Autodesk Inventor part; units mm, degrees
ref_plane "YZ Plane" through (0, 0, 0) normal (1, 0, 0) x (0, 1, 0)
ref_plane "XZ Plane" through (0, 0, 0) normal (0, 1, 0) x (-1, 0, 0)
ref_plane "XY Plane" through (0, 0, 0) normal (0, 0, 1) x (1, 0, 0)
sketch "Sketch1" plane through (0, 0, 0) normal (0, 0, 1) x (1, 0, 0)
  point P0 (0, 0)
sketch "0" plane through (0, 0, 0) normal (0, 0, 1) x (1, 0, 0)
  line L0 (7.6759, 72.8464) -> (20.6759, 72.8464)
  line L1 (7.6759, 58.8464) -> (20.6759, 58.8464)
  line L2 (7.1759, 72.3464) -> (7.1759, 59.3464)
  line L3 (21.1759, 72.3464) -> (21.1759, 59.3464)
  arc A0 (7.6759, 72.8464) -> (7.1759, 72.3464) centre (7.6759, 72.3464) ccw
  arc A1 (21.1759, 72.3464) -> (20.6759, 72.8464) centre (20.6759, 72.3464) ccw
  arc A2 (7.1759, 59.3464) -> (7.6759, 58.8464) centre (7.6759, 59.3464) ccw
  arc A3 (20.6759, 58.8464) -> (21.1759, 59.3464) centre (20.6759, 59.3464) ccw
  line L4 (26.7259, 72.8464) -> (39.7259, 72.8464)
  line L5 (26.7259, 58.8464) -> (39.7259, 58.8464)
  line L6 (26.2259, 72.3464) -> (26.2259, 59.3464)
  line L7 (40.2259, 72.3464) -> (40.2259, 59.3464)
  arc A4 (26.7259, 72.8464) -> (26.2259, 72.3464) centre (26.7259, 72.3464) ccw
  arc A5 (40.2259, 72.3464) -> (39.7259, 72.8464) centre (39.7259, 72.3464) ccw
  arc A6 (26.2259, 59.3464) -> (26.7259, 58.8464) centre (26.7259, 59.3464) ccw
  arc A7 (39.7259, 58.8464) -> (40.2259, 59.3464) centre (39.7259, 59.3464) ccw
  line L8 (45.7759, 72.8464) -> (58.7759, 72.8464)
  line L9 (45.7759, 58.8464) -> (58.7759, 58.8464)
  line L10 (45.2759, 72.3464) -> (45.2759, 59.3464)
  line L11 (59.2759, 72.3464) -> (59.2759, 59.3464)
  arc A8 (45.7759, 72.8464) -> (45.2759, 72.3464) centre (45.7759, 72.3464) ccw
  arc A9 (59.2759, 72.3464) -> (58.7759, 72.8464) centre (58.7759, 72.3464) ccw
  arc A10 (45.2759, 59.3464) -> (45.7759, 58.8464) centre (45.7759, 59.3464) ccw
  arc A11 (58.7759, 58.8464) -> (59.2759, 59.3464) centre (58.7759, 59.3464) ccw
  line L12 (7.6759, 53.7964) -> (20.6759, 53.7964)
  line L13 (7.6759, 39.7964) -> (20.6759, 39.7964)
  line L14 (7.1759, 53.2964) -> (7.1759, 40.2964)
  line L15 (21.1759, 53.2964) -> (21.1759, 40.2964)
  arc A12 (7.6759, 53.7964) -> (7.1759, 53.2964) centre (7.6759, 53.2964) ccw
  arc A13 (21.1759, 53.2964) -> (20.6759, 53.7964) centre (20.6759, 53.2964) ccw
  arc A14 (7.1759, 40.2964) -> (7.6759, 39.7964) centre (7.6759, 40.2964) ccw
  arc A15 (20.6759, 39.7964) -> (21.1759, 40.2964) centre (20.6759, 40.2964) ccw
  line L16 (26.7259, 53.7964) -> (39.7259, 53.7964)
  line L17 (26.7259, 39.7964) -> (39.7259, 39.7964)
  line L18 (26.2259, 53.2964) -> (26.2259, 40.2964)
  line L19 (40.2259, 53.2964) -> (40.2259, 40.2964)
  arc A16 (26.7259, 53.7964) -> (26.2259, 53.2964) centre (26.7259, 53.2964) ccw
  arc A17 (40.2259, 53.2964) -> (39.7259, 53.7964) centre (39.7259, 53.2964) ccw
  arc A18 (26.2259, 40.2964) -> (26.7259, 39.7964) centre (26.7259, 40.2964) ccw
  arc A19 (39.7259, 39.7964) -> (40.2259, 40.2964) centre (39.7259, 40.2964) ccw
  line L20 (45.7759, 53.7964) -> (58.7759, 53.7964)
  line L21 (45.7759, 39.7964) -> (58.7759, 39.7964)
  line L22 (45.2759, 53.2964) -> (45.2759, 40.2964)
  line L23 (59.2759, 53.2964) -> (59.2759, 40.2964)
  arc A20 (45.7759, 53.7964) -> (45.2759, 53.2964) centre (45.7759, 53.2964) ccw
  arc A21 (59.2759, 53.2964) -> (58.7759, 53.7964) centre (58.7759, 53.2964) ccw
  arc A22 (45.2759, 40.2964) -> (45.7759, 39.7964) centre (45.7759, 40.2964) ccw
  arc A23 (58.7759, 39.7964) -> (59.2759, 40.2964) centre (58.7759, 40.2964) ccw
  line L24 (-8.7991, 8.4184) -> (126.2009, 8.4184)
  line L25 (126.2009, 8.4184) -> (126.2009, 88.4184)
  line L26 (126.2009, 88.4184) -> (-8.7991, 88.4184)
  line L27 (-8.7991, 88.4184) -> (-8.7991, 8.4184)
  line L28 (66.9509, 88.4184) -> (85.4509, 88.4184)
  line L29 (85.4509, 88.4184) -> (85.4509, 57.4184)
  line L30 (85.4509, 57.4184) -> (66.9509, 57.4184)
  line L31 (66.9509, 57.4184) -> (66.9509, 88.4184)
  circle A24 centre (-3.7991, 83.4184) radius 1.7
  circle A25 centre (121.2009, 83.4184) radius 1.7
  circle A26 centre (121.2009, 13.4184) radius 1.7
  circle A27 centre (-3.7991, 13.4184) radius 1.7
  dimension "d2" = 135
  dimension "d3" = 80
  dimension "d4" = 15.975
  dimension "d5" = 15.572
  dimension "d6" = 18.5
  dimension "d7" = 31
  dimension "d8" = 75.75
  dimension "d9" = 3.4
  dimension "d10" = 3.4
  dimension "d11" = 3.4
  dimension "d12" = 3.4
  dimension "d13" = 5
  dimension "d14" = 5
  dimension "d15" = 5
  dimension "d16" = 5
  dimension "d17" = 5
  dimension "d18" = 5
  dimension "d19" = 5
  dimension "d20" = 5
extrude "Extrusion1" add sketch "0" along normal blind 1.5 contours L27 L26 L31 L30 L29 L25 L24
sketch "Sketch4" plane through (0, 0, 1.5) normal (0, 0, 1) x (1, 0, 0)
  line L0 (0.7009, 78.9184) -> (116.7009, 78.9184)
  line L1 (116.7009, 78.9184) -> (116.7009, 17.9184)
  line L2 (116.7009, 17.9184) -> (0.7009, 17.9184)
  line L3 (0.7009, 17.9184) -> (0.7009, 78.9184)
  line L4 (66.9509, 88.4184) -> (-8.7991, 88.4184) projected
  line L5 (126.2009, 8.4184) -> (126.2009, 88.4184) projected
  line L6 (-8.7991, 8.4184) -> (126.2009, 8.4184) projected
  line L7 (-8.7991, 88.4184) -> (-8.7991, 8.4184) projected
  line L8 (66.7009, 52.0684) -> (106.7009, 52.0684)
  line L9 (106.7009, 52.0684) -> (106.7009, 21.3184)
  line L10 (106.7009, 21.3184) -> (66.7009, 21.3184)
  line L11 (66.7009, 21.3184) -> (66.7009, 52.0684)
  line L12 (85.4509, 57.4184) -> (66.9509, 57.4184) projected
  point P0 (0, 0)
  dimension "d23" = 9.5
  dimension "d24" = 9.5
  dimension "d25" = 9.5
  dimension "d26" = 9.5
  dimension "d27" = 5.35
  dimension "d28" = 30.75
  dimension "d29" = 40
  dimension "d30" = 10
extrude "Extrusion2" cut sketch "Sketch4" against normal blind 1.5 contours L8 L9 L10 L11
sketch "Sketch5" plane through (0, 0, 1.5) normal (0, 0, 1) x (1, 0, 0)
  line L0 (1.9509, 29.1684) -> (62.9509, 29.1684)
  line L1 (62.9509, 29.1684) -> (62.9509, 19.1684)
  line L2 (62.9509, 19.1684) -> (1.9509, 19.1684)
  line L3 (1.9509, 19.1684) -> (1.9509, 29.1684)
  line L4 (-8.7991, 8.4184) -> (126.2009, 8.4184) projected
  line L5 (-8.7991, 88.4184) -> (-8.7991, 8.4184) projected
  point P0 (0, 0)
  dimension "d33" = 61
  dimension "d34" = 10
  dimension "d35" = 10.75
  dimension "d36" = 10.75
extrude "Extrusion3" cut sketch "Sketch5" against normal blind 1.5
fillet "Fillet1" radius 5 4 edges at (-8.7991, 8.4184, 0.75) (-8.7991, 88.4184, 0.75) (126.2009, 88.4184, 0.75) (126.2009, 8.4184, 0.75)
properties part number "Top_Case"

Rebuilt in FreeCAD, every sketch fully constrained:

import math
import FreeCAD as App
import Part
import Sketcher


def edges_at(feature, points):
    """Names of the edges that pass closest to the given points."""
    edges = feature.Shape.Edges
    near = lambda p: min(range(len(edges)), key=lambda i: edges[i].distToShape(Part.Vertex(*p))[0])
    return sorted({f"Edge{near(p) + 1}" for p in points})

doc = App.newDocument("Part")
body = doc.addObject("PartDesign::Body", "Body")

# Sketch on XY plane
sketch1 = body.newObject("Sketcher::SketchObject", "Sketch")
sketch1.AttachmentSupport = (doc.getObject("XY_Plane"), [""])
sketch1.MapMode = "FlatFace"
sketch1.addGeometry([
    Part.LineSegment(App.Vector(-8.8, 88.4, 0), App.Vector(-8.8, 8.4, 0)),  # 0
    Part.LineSegment(App.Vector(-8.8, 8.4, 0), App.Vector(126.2, 8.4, 0)),  # 1
    Part.LineSegment(App.Vector(126.2, 8.4, 0), App.Vector(126.2, 88.4, 0)),  # 2
    Part.LineSegment(App.Vector(126.2, 88.4, 0), App.Vector(85.5, 88.4, 0)),  # 3
    Part.LineSegment(App.Vector(85.5, 88.4, 0), App.Vector(85.5, 57.4, 0)),  # 4
    Part.LineSegment(App.Vector(85.5, 57.4, 0), App.Vector(67, 57.4, 0)),  # 5
    Part.LineSegment(App.Vector(67, 57.4, 0), App.Vector(67, 88.4, 0)),  # 6
    Part.LineSegment(App.Vector(67, 88.4, 0), App.Vector(-8.8, 88.4, 0)),  # 7
    Part.Circle(App.Vector(-3.8, 13.4, 0), App.Vector(0, 0, 1), 1.7),  # 8
    Part.ArcOfCircle(Part.Circle(App.Vector(7.7, 53.3, 0), App.Vector(0, 0, 1), 0.5), math.radians(90), math.radians(180)),  # 9
    Part.LineSegment(App.Vector(7.7, 53.8, 0), App.Vector(20.7, 53.8, 0)),  # 10
    Part.ArcOfCircle(Part.Circle(App.Vector(20.7, 53.3, 0), App.Vector(0, 0, 1), 0.5), math.radians(0), math.radians(90)),  # 11
    Part.LineSegment(App.Vector(21.2, 53.3, 0), App.Vector(21.2, 40.3, 0)),  # 12
    Part.ArcOfCircle(Part.Circle(App.Vector(20.7, 40.3, 0), App.Vector(0, 0, 1), 0.5), math.radians(-90), math.radians(0)),  # 13
    Part.LineSegment(App.Vector(20.7, 39.8, 0), App.Vector(7.7, 39.8, 0)),  # 14
    Part.ArcOfCircle(Part.Circle(App.Vector(7.7, 40.3, 0), App.Vector(0, 0, 1), 0.5), math.radians(180), math.radians(270)),  # 15
    Part.LineSegment(App.Vector(7.2, 40.3, 0), App.Vector(7.2, 53.3, 0)),  # 16
    Part.ArcOfCircle(Part.Circle(App.Vector(26.7, 53.3, 0), App.Vector(0, 0, 1), 0.5), math.radians(90), math.radians(180)),  # 17
    Part.LineSegment(App.Vector(26.7, 53.8, 0), App.Vector(39.7, 53.8, 0)),  # 18
    Part.ArcOfCircle(Part.Circle(App.Vector(39.7, 53.3, 0), App.Vector(0, 0, 1), 0.5), math.radians(0), math.radians(90)),  # 19
    Part.LineSegment(App.Vector(40.2, 53.3, 0), App.Vector(40.2, 40.3, 0)),  # 20
    Part.ArcOfCircle(Part.Circle(App.Vector(39.7, 40.3, 0), App.Vector(0, 0, 1), 0.5), math.radians(-90), math.radians(0)),  # 21
    Part.LineSegment(App.Vector(39.7, 39.8, 0), App.Vector(26.7, 39.8, 0)),  # 22
    Part.ArcOfCircle(Part.Circle(App.Vector(26.7, 40.3, 0), App.Vector(0, 0, 1), 0.5), math.radians(180), math.radians(270)),  # 23
    Part.LineSegment(App.Vector(26.2, 40.3, 0), App.Vector(26.2, 53.3, 0)),  # 24
    Part.ArcOfCircle(Part.Circle(App.Vector(45.8, 53.3, 0), App.Vector(0, 0, 1), 0.5), math.radians(90), math.radians(180)),  # 25
    Part.LineSegment(App.Vector(45.8, 53.8, 0), App.Vector(58.8, 53.8, 0)),  # 26
    Part.ArcOfCircle(Part.Circle(App.Vector(58.8, 53.3, 0), App.Vector(0, 0, 1), 0.5), math.radians(0), math.radians(90)),  # 27
    Part.LineSegment(App.Vector(59.3, 53.3, 0), App.Vector(59.3, 40.3, 0)),  # 28
    Part.ArcOfCircle(Part.Circle(App.Vector(58.8, 40.3, 0), App.Vector(0, 0, 1), 0.5), math.radians(-90), math.radians(0)),  # 29
    Part.LineSegment(App.Vector(58.8, 39.8, 0), App.Vector(45.8, 39.8, 0)),  # 30
    Part.ArcOfCircle(Part.Circle(App.Vector(45.8, 40.3, 0), App.Vector(0, 0, 1), 0.5), math.radians(180), math.radians(270)),  # 31
    Part.LineSegment(App.Vector(45.3, 40.3, 0), App.Vector(45.3, 53.3, 0)),  # 32
    Part.Circle(App.Vector(121.2, 13.4, 0), App.Vector(0, 0, 1), 1.7),  # 33
    Part.ArcOfCircle(Part.Circle(App.Vector(7.7, 72.3, 0), App.Vector(0, 0, 1), 0.5), math.radians(90), math.radians(180)),  # 34
    Part.LineSegment(App.Vector(7.7, 72.8, 0), App.Vector(20.7, 72.8, 0)),  # 35
    Part.ArcOfCircle(Part.Circle(App.Vector(20.7, 72.3, 0), App.Vector(0, 0, 1), 0.5), math.radians(0), math.radians(90)),  # 36
    Part.LineSegment(App.Vector(21.2, 72.3, 0), App.Vector(21.2, 59.3, 0)),  # 37
    Part.ArcOfCircle(Part.Circle(App.Vector(20.7, 59.3, 0), App.Vector(0, 0, 1), 0.5), math.radians(-90), math.radians(0)),  # 38
    Part.LineSegment(App.Vector(20.7, 58.8, 0), App.Vector(7.7, 58.8, 0)),  # 39
    Part.ArcOfCircle(Part.Circle(App.Vector(7.7, 59.3, 0), App.Vector(0, 0, 1), 0.5), math.radians(180), math.radians(270)),  # 40
    Part.LineSegment(App.Vector(7.2, 59.3, 0), App.Vector(7.2, 72.3, 0)),  # 41
    Part.ArcOfCircle(Part.Circle(App.Vector(26.7, 72.3, 0), App.Vector(0, 0, 1), 0.5), math.radians(90), math.radians(180)),  # 42
    Part.LineSegment(App.Vector(26.7, 72.8, 0), App.Vector(39.7, 72.8, 0)),  # 43
    Part.ArcOfCircle(Part.Circle(App.Vector(39.7, 72.3, 0), App.Vector(0, 0, 1), 0.5), math.radians(0), math.radians(90)),  # 44
    Part.LineSegment(App.Vector(40.2, 72.3, 0), App.Vector(40.2, 59.3, 0)),  # 45
    Part.ArcOfCircle(Part.Circle(App.Vector(39.7, 59.3, 0), App.Vector(0, 0, 1), 0.5), math.radians(-90), math.radians(0)),  # 46
    Part.LineSegment(App.Vector(39.7, 58.8, 0), App.Vector(26.7, 58.8, 0)),  # 47
    Part.ArcOfCircle(Part.Circle(App.Vector(26.7, 59.3, 0), App.Vector(0, 0, 1), 0.5), math.radians(180), math.radians(270)),  # 48
    Part.LineSegment(App.Vector(26.2, 59.3, 0), App.Vector(26.2, 72.3, 0)),  # 49
    Part.ArcOfCircle(Part.Circle(App.Vector(45.8, 72.3, 0), App.Vector(0, 0, 1), 0.5), math.radians(90), math.radians(180)),  # 50
    Part.LineSegment(App.Vector(45.8, 72.8, 0), App.Vector(58.8, 72.8, 0)),  # 51
    Part.ArcOfCircle(Part.Circle(App.Vector(58.8, 72.3, 0), App.Vector(0, 0, 1), 0.5), math.radians(0), math.radians(90)),  # 52
    Part.LineSegment(App.Vector(59.3, 72.3, 0), App.Vector(59.3, 59.3, 0)),  # 53
    Part.ArcOfCircle(Part.Circle(App.Vector(58.8, 59.3, 0), App.Vector(0, 0, 1), 0.5), math.radians(-90), math.radians(0)),  # 54
    Part.LineSegment(App.Vector(58.8, 58.8, 0), App.Vector(45.8, 58.8, 0)),  # 55
    Part.ArcOfCircle(Part.Circle(App.Vector(45.8, 59.3, 0), App.Vector(0, 0, 1), 0.5), math.radians(180), math.radians(270)),  # 56
    Part.LineSegment(App.Vector(45.3, 59.3, 0), App.Vector(45.3, 72.3, 0)),  # 57
    Part.Circle(App.Vector(-3.8, 83.4, 0), App.Vector(0, 0, 1), 1.7),  # 58
    Part.Circle(App.Vector(121.2, 83.4, 0), App.Vector(0, 0, 1), 1.7),  # 59
], False)
sketch1.addConstraint([
    Sketcher.Constraint("Coincident", 0, 2, 1, 1),
    Sketcher.Constraint("Coincident", 1, 2, 2, 1),
    Sketcher.Constraint("Coincident", 2, 2, 3, 1),
    Sketcher.Constraint("Coincident", 3, 2, 4, 1),
    Sketcher.Constraint("Coincident", 4, 2, 5, 1),
    Sketcher.Constraint("Coincident", 5, 2, 6, 1),
    Sketcher.Constraint("Coincident", 6, 2, 7, 1),
    Sketcher.Constraint("Coincident", 7, 2, 0, 1),
    Sketcher.Constraint("Tangent", 9, 1, 10, 1),
    Sketcher.Constraint("Tangent", 10, 2, 11, 2),
    Sketcher.Constraint("Tangent", 11, 1, 12, 1),
    Sketcher.Constraint("Tangent", 12, 2, 13, 2),
    Sketcher.Constraint("Tangent", 13, 1, 14, 1),
    Sketcher.Constraint("Tangent", 14, 2, 15, 2),
    Sketcher.Constraint("Tangent", 15, 1, 16, 1),
    Sketcher.Constraint("Tangent", 16, 2, 9, 2),
    Sketcher.Constraint("Tangent", 17, 1, 18, 1),
    Sketcher.Constraint("Tangent", 18, 2, 19, 2),
    Sketcher.Constraint("Tangent", 19, 1, 20, 1),
    Sketcher.Constraint("Tangent", 20, 2, 21, 2),
    Sketcher.Constraint("Tangent", 21, 1, 22, 1),
    Sketcher.Constraint("Tangent", 22, 2, 23, 2),
    Sketcher.Constraint("Tangent", 23, 1, 24, 1),
    Sketcher.Constraint("Tangent", 24, 2, 17, 2),
    Sketcher.Constraint("Tangent", 25, 1, 26, 1),
    Sketcher.Constraint("Tangent", 26, 2, 27, 2),
    Sketcher.Constraint("Tangent", 27, 1, 28, 1),
    Sketcher.Constraint("Tangent", 28, 2, 29, 2),
    Sketcher.Constraint("Tangent", 29, 1, 30, 1),
    Sketcher.Constraint("Tangent", 30, 2, 31, 2),
    Sketcher.Constraint("Tangent", 31, 1, 32, 1),
    Sketcher.Constraint("Tangent", 32, 2, 25, 2),
    Sketcher.Constraint("Tangent", 34, 1, 35, 1),
    Sketcher.Constraint("Tangent", 35, 2, 36, 2),
    Sketcher.Constraint("Tangent", 36, 1, 37, 1),
    Sketcher.Constraint("Tangent", 37, 2, 38, 2),
    Sketcher.Constraint("Tangent", 38, 1, 39, 1),
    Sketcher.Constraint("Tangent", 39, 2, 40, 2),
    Sketcher.Constraint("Tangent", 40, 1, 41, 1),
    Sketcher.Constraint("Tangent", 41, 2, 34, 2),
    Sketcher.Constraint("Tangent", 42, 1, 43, 1),
    Sketcher.Constraint("Tangent", 43, 2, 44, 2),
    Sketcher.Constraint("Tangent", 44, 1, 45, 1),
    Sketcher.Constraint("Tangent", 45, 2, 46, 2),
    Sketcher.Constraint("Tangent", 46, 1, 47, 1),
    Sketcher.Constraint("Tangent", 47, 2, 48, 2),
    Sketcher.Constraint("Tangent", 48, 1, 49, 1),
    Sketcher.Constraint("Tangent", 49, 2, 42, 2),
    Sketcher.Constraint("Tangent", 50, 1, 51, 1),
    Sketcher.Constraint("Tangent", 51, 2, 52, 2),
    Sketcher.Constraint("Tangent", 52, 1, 53, 1),
    Sketcher.Constraint("Tangent", 53, 2, 54, 2),
    Sketcher.Constraint("Tangent", 54, 1, 55, 1),
    Sketcher.Constraint("Tangent", 55, 2, 56, 2),
    Sketcher.Constraint("Tangent", 56, 1, 57, 1),
    Sketcher.Constraint("Tangent", 57, 2, 50, 2),
    Sketcher.Constraint("Vertical", 0),
    Sketcher.Constraint("Horizontal", 1),
    Sketcher.Constraint("Vertical", 2),
    Sketcher.Constraint("Horizontal", 3),
    Sketcher.Constraint("Vertical", 4),
    Sketcher.Constraint("Horizontal", 5),
    Sketcher.Constraint("Vertical", 6),
    Sketcher.Constraint("Horizontal", 7),
    Sketcher.Constraint("Horizontal", 10),
    Sketcher.Constraint("Vertical", 12),
    Sketcher.Constraint("Horizontal", 14),
    Sketcher.Constraint("Vertical", 16),
    Sketcher.Constraint("Horizontal", 18),
    Sketcher.Constraint("Vertical", 20),
    Sketcher.Constraint("Horizontal", 22),
    Sketcher.Constraint("Vertical", 24),
    Sketcher.Constraint("Horizontal", 26),
    Sketcher.Constraint("Vertical", 28),
    Sketcher.Constraint("Horizontal", 30),
    Sketcher.Constraint("Vertical", 32),
    Sketcher.Constraint("Horizontal", 35),
    Sketcher.Constraint("Vertical", 37),
    Sketcher.Constraint("Horizontal", 39),
    Sketcher.Constraint("Vertical", 41),
    Sketcher.Constraint("Horizontal", 43),
    Sketcher.Constraint("Vertical", 45),
    Sketcher.Constraint("Horizontal", 47),
    Sketcher.Constraint("Vertical", 49),
    Sketcher.Constraint("Horizontal", 51),
    Sketcher.Constraint("Vertical", 53),
    Sketcher.Constraint("Horizontal", 55),
    Sketcher.Constraint("Vertical", 57),
    Sketcher.Constraint("Equal", 9, 11),
    Sketcher.Constraint("Equal", 11, 13),
    Sketcher.Constraint("Equal", 13, 15),
    Sketcher.Constraint("Equal", 15, 17),
    Sketcher.Constraint("Equal", 17, 19),
    Sketcher.Constraint("Equal", 19, 21),
    Sketcher.Constraint("Equal", 21, 23),
    Sketcher.Constraint("Equal", 23, 25),
    Sketcher.Constraint("Equal", 25, 27),
    Sketcher.Constraint("Equal", 27, 29),
    Sketcher.Constraint("Equal", 29, 31),
    Sketcher.Constraint("Equal", 8, 33),
    Sketcher.Constraint("Equal", 31, 34),
    Sketcher.Constraint("Equal", 34, 36),
    Sketcher.Constraint("Equal", 36, 38),
    Sketcher.Constraint("Equal", 38, 40),
    Sketcher.Constraint("Equal", 40, 42),
    Sketcher.Constraint("Equal", 42, 44),
    Sketcher.Constraint("Equal", 44, 46),
    Sketcher.Constraint("Equal", 46, 48),
    Sketcher.Constraint("Equal", 48, 50),
    Sketcher.Constraint("Equal", 50, 52),
    Sketcher.Constraint("Equal", 52, 54),
    Sketcher.Constraint("Equal", 54, 56),
    Sketcher.Constraint("Equal", 33, 58),
    Sketcher.Constraint("Equal", 58, 59),
    Sketcher.Constraint("Horizontal", 11, 3, 17, 3),
    Sketcher.Constraint("Horizontal", 15, 3, 21, 3),
    Sketcher.Constraint("Horizontal", 19, 3, 25, 3),
    Sketcher.Constraint("Horizontal", 23, 3, 29, 3),
    Sketcher.Constraint("Horizontal", 8, 3, 33, 3),
    Sketcher.Constraint("Horizontal", 36, 3, 42, 3),
    Sketcher.Constraint("Horizontal", 40, 3, 46, 3),
    Sketcher.Constraint("Horizontal", 44, 3, 50, 3),
    Sketcher.Constraint("Horizontal", 48, 3, 54, 3),
    Sketcher.Constraint("Horizontal", 58, 3, 59, 3),
    Sketcher.Constraint("Horizontal", 3, 2, 6, 2),
    Sketcher.Constraint("Vertical", 15, 3, 34, 3),
    Sketcher.Constraint("Vertical", 13, 3, 36, 3),
    Sketcher.Constraint("Vertical", 23, 3, 42, 3),
    Sketcher.Constraint("Vertical", 21, 3, 44, 3),
    Sketcher.Constraint("Vertical", 31, 3, 50, 3),
    Sketcher.Constraint("Vertical", 29, 3, 52, 3),
    Sketcher.Constraint("Vertical", 8, 3, 58, 3),
    Sketcher.Constraint("Vertical", 33, 3, 59, 3),
    Sketcher.Constraint("Equal", 14, 18),
    Sketcher.Constraint("Equal", 22, 26),
    Sketcher.Constraint("Equal", 55, 12),
    Sketcher.Constraint("Equal", 32, 37),
    Sketcher.Constraint("Diameter", 8, 3.4),
    Sketcher.Constraint("DistanceX", 1, 1, 1, 2, 135.0),
    Sketcher.Constraint("DistanceY", 0, 2, 0, 1, 80.0),
    Sketcher.Constraint("DistanceY", 4, 2, 4, 1, 31.0),
    Sketcher.Constraint("DistanceX", 5, 2, 5, 1, 18.5),
    Sketcher.Constraint("DistanceX", 7, 2, 7, 1, 75.75),
    Sketcher.Constraint("Radius", 9, 0.5),
    Sketcher.Constraint("DistanceX", 10, 1, 10, 2, 13.0),
    Sketcher.Constraint("DistanceX", 8, 3, -1, 1, 3.799),
    Sketcher.Constraint("DistanceX", -1, 1, 9, 3, 7.676),
    Sketcher.Constraint("DistanceX", -1, 1, 17, 3, 26.726),
    Sketcher.Constraint("DistanceX", -1, 1, 25, 3, 45.776),
    Sketcher.Constraint("DistanceX", -1, 1, 33, 3, 121.201),
    Sketcher.Constraint("DistanceX", 0, 2, -1, 1, 8.799),
    Sketcher.Constraint("DistanceY", -1, 1, 8, 3, 13.4184),
    Sketcher.Constraint("DistanceY", -1, 1, 9, 3, 53.2964),
    Sketcher.Constraint("DistanceY", -1, 1, 34, 3, 72.3464),
    Sketcher.Constraint("DistanceY", -1, 1, 58, 3, 83.4184),
    Sketcher.Constraint("DistanceY", -1, 1, 0, 2, 8.4184),
])
pad1 = body.newObject("PartDesign::Pad", "Pad")
pad1.Profile = sketch1
pad1.Length = 1.5

# Sketch on XY plane
sketch2 = body.newObject("Sketcher::SketchObject", "Sketch001")
sketch2.AttachmentSupport = (doc.getObject("XY_Plane"), [""])
sketch2.MapMode = "FlatFace"
sketch2.AttachmentOffset = App.Placement(App.Vector(0, 0, 1.5), App.Rotation())
sketch2.addGeometry([
    Part.LineSegment(App.Vector(107, 52, 0), App.Vector(67, 52, 0)),
    Part.LineSegment(App.Vector(67, 52, 0), App.Vector(67, 21, 0)),
    Part.LineSegment(App.Vector(67, 21, 0), App.Vector(107, 21, 0)),
    Part.LineSegment(App.Vector(107, 21, 0), App.Vector(107, 52, 0)),
], False)
sketch2.addConstraint([
    Sketcher.Constraint("Coincident", 0, 2, 1, 1),
    Sketcher.Constraint("Coincident", 1, 2, 2, 1),
    Sketcher.Constraint("Coincident", 2, 2, 3, 1),
    Sketcher.Constraint("Coincident", 3, 2, 0, 1),
    Sketcher.Constraint("Horizontal", 0),
    Sketcher.Constraint("Vertical", 1),
    Sketcher.Constraint("Horizontal", 2),
    Sketcher.Constraint("Vertical", 3),
    Sketcher.Constraint("DistanceX", 0, 2, 0, 1, 40.0),
    Sketcher.Constraint("DistanceY", 1, 2, 1, 1, 30.75),
    Sketcher.Constraint("DistanceX", -1, 1, 0, 2, 66.701),
    Sketcher.Constraint("DistanceY", -1, 1, 0, 2, 52.0684),
])
pocket1 = body.newObject("PartDesign::Pocket", "Pocket")
pocket1.Profile = sketch2
pocket1.Length = 1.5

# Sketch on XY plane
sketch3 = body.newObject("Sketcher::SketchObject", "Sketch002")
sketch3.AttachmentSupport = (doc.getObject("XY_Plane"), [""])
sketch3.MapMode = "FlatFace"
sketch3.AttachmentOffset = App.Placement(App.Vector(0, 0, 1.5), App.Rotation())
sketch3.addGeometry([
    Part.LineSegment(App.Vector(63, 29, 0), App.Vector(2, 29, 0)),
    Part.LineSegment(App.Vector(2, 29, 0), App.Vector(2, 19, 0)),
    Part.LineSegment(App.Vector(2, 19, 0), App.Vector(63, 19, 0)),
    Part.LineSegment(App.Vector(63, 19, 0), App.Vector(63, 29, 0)),
], False)
sketch3.addConstraint([
    Sketcher.Constraint("Coincident", 0, 2, 1, 1),
    Sketcher.Constraint("Coincident", 1, 2, 2, 1),
    Sketcher.Constraint("Coincident", 2, 2, 3, 1),
    Sketcher.Constraint("Coincident", 3, 2, 0, 1),
    Sketcher.Constraint("Horizontal", 0),
    Sketcher.Constraint("Vertical", 1),
    Sketcher.Constraint("Horizontal", 2),
    Sketcher.Constraint("Vertical", 3),
    Sketcher.Constraint("DistanceX", 0, 2, 0, 1, 61.0),
    Sketcher.Constraint("DistanceY", 1, 2, 1, 1, 10.0),
    Sketcher.Constraint("DistanceX", -1, 1, 0, 2, 1.951),
    Sketcher.Constraint("DistanceY", -1, 1, 0, 2, 29.1684),
])
pocket2 = body.newObject("PartDesign::Pocket", "Pocket001")
pocket2.Profile = sketch3
pocket2.Length = 1.5
doc.recompute()

fillet = body.newObject("PartDesign::Fillet", "Fillet")
fillet.Base = (pocket2, edges_at(pocket2, [
    (-8.799, 8.418, 0.75),
    (-8.799, 88.418, 0.75),
    (126.201, 88.418, 0.75),
    (126.201, 8.418, 0.75),
]))
fillet.Radius = 5

doc.recompute()
